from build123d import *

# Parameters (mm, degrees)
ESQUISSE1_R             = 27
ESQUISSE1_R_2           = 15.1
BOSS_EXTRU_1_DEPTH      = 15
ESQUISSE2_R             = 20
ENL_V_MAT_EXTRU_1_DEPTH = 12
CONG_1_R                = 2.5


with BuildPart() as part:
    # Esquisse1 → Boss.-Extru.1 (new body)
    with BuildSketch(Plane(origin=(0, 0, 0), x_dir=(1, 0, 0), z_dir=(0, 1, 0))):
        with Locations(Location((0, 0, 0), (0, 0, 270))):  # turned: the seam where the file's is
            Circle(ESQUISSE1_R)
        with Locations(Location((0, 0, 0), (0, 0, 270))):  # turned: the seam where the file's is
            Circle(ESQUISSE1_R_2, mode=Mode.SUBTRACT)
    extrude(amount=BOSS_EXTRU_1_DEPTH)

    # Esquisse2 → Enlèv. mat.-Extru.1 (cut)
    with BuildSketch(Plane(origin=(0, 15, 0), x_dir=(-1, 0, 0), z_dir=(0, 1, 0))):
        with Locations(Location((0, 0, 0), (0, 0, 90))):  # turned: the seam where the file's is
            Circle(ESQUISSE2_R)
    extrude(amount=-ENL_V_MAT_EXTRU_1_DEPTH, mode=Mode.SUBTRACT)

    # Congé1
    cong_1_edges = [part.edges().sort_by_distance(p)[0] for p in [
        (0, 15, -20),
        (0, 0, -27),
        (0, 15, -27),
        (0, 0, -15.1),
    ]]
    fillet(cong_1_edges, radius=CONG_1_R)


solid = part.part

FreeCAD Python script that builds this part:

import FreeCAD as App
import Part
import Sketcher

V = App.Vector


def edges_at(feature, points):
    """Names of the edges that pass closest to the given points."""
    edges = feature.Shape.Edges
    near = lambda p: min(range(len(edges)), key=lambda i: edges[i].distToShape(Part.Vertex(*p))[0])
    return sorted({f"Edge{near(p) + 1}" for p in points})

doc = App.newDocument("Part")
body = doc.addObject("PartDesign::Body", "Body")

# Sketch on XZ plane
sketch1 = body.newObject("Sketcher::SketchObject", "Sketch")
sketch1.AttachmentSupport = (doc.getObject("XZ_Plane"), [""])
sketch1.MapMode = "FlatFace"
sketch1.addGeometry([
    Part.Circle(V(0, 0, 0), V(0, 0, 1), 27),
    Part.Circle(V(0, 0, 0), V(0, 0, 1), 15.1),
], False)
sketch1.addConstraint([
    Sketcher.Constraint("Coincident", 0, 3, -1, 1),
    Sketcher.Constraint("Coincident", 1, 3, -1, 1),
    Sketcher.Constraint("Diameter", 0, 54.0),
    Sketcher.Constraint("Diameter", 1, 30.2),
])
pad1 = body.newObject("PartDesign::Pad", "Pad")
pad1.Profile = sketch1
pad1.Length = 15
pad1.Reversed = True

# Sketch on XZ plane
sketch2 = body.newObject("Sketcher::SketchObject", "Sketch001")
sketch2.AttachmentSupport = (doc.getObject("XZ_Plane"), [""])
sketch2.MapMode = "FlatFace"
sketch2.AttachmentOffset = App.Placement(V(0, 0, -15), App.Rotation())
sketch2.addGeometry(Part.Circle(V(0, 0, 0), V(0, 0, 1), 20), False)
sketch2.addConstraint([
    Sketcher.Constraint("Coincident", 0, 3, -1, 1),
    Sketcher.Constraint("Diameter", 0, 40.0),
])
pocket1 = body.newObject("PartDesign::Pocket", "Pocket")
pocket1.Profile = sketch2
pocket1.Length = 12
pocket1.Reversed = True
doc.recompute()

fillet = body.newObject("PartDesign::Fillet", "Fillet")
fillet.Base = (pocket1, edges_at(pocket1, [
    (0, 15, -20),
    (0, 0, -27),
    (0, 15, -27),
    (0, 0, -15.1),
]))
fillet.Radius = 2.5

doc.recompute()
